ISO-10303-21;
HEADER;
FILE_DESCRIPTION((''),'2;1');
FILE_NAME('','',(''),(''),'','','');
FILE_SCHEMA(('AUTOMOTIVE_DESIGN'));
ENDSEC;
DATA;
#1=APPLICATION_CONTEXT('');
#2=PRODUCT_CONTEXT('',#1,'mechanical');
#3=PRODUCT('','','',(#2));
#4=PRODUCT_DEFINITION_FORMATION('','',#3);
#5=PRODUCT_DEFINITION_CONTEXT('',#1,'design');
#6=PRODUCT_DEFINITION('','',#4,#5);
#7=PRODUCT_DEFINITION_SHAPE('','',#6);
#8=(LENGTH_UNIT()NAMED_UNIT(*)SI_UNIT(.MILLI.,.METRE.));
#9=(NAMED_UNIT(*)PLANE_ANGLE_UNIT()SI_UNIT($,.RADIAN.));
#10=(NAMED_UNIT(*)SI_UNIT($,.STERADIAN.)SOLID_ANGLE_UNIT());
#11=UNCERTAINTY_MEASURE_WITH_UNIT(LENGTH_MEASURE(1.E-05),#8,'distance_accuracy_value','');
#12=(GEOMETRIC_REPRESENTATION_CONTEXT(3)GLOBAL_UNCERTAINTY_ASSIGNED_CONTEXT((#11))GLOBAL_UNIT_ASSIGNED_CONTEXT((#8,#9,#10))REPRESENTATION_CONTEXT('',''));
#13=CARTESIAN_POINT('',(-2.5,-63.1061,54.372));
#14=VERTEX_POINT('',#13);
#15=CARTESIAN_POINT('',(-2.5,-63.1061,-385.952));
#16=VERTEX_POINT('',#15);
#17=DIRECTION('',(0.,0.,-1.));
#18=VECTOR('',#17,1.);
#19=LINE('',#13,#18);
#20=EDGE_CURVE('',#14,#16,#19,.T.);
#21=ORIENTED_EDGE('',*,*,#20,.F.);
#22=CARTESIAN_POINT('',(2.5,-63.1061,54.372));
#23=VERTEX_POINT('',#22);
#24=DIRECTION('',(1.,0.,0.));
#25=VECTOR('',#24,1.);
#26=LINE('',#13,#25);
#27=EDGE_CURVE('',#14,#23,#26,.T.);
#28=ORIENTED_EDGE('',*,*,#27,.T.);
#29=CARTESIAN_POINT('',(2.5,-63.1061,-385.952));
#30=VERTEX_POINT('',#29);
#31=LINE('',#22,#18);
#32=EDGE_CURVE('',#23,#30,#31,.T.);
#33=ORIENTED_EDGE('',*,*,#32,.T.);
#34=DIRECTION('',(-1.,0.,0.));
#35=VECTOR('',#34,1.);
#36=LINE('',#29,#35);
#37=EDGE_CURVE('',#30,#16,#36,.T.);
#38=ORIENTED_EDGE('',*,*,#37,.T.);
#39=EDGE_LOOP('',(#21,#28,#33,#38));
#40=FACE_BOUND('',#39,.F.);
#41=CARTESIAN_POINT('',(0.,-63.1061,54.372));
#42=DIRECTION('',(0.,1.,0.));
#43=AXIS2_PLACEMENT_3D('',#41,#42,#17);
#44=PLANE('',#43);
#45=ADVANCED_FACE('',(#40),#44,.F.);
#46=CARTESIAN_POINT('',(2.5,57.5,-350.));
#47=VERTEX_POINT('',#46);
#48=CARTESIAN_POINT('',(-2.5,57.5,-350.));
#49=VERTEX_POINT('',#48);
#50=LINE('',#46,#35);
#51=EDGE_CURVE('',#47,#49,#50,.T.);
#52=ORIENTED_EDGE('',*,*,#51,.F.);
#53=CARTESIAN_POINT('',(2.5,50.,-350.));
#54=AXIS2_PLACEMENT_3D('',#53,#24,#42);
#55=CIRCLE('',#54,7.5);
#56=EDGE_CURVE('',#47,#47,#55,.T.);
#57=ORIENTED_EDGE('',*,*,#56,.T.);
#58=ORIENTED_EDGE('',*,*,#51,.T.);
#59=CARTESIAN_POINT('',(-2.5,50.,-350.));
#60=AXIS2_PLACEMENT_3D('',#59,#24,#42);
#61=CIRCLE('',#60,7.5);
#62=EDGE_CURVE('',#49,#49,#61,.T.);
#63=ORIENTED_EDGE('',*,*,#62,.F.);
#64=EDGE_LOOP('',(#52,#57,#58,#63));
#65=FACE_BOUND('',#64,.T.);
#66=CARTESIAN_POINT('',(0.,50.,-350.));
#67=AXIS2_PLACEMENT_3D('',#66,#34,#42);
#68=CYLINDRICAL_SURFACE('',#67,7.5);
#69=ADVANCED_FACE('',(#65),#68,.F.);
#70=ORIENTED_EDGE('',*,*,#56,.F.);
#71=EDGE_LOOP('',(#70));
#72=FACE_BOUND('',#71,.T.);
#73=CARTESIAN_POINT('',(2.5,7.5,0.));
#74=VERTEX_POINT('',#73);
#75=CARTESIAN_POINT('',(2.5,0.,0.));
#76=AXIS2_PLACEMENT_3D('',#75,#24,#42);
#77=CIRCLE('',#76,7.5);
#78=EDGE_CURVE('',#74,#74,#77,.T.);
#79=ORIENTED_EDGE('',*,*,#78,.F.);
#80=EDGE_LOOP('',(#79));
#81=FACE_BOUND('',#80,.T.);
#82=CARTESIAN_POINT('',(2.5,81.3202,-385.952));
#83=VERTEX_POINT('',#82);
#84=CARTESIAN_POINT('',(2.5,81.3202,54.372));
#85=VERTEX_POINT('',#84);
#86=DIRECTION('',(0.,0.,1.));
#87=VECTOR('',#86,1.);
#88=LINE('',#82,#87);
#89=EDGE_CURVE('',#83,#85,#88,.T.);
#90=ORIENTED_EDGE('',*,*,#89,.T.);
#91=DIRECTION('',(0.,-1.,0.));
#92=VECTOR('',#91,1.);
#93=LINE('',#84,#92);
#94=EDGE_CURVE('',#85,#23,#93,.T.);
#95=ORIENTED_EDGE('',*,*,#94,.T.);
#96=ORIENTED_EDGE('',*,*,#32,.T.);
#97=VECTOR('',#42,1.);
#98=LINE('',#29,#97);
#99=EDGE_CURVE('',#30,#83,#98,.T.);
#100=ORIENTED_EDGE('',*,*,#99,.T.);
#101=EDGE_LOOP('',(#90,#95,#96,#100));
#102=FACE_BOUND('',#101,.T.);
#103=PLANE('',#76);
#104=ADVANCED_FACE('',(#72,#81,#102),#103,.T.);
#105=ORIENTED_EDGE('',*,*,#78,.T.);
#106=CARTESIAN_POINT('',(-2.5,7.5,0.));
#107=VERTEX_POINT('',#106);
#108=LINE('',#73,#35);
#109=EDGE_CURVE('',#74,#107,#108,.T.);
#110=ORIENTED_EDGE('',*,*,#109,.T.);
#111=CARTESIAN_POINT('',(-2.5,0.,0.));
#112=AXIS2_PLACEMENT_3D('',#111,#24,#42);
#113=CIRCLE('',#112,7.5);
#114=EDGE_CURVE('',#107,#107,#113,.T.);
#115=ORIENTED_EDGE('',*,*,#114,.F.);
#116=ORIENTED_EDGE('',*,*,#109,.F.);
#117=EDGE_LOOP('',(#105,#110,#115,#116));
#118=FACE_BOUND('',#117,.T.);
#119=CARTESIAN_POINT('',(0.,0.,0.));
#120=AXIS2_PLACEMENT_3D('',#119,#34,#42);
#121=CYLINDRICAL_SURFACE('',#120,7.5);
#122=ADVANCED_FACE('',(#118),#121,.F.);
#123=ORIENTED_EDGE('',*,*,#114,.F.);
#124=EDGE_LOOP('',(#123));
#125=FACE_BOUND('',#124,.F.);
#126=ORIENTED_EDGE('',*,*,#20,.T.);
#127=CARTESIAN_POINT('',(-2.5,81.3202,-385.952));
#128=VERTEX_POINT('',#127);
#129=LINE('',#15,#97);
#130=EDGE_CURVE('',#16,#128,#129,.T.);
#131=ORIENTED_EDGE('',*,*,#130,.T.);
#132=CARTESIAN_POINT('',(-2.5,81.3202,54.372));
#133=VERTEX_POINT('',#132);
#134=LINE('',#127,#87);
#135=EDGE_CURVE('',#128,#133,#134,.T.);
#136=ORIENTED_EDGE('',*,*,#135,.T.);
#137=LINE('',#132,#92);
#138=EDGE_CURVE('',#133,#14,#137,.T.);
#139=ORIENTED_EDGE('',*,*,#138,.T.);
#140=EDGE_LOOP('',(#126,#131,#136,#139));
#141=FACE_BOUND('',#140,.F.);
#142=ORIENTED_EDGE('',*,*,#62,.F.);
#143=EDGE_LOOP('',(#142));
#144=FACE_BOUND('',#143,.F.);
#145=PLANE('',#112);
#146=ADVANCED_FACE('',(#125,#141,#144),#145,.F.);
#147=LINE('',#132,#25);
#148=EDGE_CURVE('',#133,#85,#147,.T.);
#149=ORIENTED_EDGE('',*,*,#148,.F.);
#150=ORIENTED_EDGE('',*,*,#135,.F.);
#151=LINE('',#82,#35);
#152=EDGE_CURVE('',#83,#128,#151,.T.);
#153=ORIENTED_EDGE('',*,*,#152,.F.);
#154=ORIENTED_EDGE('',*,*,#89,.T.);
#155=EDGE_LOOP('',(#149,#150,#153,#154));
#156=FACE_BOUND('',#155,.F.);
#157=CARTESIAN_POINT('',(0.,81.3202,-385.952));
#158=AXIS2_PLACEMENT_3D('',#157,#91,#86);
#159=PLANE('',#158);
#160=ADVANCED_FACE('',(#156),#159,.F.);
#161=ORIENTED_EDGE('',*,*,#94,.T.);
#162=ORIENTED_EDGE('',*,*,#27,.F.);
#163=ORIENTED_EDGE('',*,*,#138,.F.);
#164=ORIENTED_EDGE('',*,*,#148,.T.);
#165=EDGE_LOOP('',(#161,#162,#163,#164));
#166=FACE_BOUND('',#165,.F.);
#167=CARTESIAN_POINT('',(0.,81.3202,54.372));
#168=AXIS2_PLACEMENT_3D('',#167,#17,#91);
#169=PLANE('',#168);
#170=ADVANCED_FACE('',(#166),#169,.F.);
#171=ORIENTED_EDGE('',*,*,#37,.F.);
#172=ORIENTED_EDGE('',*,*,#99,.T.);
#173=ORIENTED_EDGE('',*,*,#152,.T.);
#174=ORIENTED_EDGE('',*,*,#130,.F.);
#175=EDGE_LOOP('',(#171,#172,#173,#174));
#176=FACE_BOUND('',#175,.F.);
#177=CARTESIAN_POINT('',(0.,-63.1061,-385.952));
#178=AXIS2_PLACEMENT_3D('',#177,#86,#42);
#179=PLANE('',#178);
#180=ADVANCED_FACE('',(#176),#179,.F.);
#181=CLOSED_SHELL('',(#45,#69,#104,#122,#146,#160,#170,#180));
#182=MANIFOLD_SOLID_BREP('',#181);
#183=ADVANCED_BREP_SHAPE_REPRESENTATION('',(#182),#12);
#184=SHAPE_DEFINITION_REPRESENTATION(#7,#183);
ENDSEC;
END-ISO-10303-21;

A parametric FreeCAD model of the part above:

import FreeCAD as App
import Part
import Sketcher

V = App.Vector


def add_polygon(sketch, points):
    """Adds a closed chain of lines whose ends are joined by coincident constraints."""
    first, n = sketch.GeometryCount, len(points)
    for a, b in zip(points, points[1:] + points[:1]):
        sketch.addGeometry(Part.LineSegment(App.Vector(*a, 0), App.Vector(*b, 0)), False)
    for i in range(n):
        sketch.addConstraint(Sketcher.Constraint("Coincident", first + i, 2, first + (i + 1) % n, 1))

doc = App.newDocument("Part")
body = doc.addObject("PartDesign::Body", "Body")

sketch1 = doc.addObject("Sketcher::SketchObject", "Sketch")
body.addObject(sketch1)
sketch1.AttachmentSupport = (doc.YZ_Plane, [""])
sketch1.MapMode = "FlatFace"
add_polygon(sketch1, [(81, -386), (81, 54), (-63, 54), (-63, -386)])
sketch1.addGeometry(Part.Circle(V(50, -350, 0), V(0, 0, 1), 8), False)
sketch1.addGeometry(Part.Circle(V(0, 0, 0), V(0, 0, 1), 8), False)
sketch1.addConstraint(Sketcher.Constraint("Vertical", 0))
sketch1.addConstraint(Sketcher.Constraint("Horizontal", 1))
sketch1.addConstraint(Sketcher.Constraint("Vertical", 2))
sketch1.addConstraint(Sketcher.Constraint("Horizontal", 3))
sketch1.addConstraint(Sketcher.Constraint("Coincident", 5, 3, -1, 1))
sketch1.addConstraint(Sketcher.Constraint("Equal", 4, 5))
sketch1.addConstraint(Sketcher.Constraint("Diameter", 4, 15.0))
sketch1.addConstraint(Sketcher.Constraint("DistanceX", -1, 1, 4, 3, 50.0))
sketch1.addConstraint(Sketcher.Constraint("DistanceY", 4, 3, -1, 1, 350.0))
sketch1.addConstraint(Sketcher.Constraint("DistanceY", 0, 1, 0, 2, 440.324))
sketch1.addConstraint(Sketcher.Constraint("DistanceX", 1, 2, 1, 1, 144.4263))
sketch1.addConstraint(Sketcher.Constraint("DistanceY", -1, 1, 0, 2, 54.372))
sketch1.addConstraint(Sketcher.Constraint("DistanceX", 1, 2, -1, 1, 63.106))
pad1 = doc.addObject("PartDesign::Pad", "Pad")
body.addObject(pad1)
pad1.Profile = sketch1
pad1.Length = 5
pad1.Midplane = True

doc.recompute()
